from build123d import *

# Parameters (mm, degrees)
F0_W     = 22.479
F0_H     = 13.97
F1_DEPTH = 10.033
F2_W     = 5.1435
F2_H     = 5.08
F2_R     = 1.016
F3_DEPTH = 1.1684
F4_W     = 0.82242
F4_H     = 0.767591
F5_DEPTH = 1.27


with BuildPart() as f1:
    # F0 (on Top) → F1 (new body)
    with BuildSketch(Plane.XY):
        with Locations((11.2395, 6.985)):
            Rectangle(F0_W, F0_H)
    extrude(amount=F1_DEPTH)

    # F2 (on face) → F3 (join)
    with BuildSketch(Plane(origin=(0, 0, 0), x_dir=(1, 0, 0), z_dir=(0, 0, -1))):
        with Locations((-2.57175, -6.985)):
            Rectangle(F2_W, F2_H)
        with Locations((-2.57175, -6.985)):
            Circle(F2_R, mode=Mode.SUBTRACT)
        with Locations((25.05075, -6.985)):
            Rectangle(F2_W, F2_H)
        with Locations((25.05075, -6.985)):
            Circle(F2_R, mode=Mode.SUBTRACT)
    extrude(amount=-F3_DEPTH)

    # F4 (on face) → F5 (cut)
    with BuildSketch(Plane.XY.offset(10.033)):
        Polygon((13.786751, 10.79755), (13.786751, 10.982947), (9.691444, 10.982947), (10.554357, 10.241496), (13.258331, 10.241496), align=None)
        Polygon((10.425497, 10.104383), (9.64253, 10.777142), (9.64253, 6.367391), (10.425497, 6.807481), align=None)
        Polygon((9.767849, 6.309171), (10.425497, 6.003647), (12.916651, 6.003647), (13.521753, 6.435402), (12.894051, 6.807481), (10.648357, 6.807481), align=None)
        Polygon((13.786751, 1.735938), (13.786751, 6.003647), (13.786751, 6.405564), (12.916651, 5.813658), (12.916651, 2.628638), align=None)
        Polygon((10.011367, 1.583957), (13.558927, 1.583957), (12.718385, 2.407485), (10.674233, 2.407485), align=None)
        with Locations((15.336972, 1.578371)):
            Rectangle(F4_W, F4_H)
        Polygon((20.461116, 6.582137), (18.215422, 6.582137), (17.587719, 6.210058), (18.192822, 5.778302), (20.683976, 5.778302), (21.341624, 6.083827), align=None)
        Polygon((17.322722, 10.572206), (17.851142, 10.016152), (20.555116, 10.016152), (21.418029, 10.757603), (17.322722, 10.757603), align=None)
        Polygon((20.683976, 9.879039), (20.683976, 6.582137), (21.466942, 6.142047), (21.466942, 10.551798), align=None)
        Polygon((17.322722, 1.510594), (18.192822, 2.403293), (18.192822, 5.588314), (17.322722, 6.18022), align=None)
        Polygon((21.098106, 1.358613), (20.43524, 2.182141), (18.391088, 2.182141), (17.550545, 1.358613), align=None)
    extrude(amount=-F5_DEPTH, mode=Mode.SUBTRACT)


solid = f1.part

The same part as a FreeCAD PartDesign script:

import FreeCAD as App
import Part
import Sketcher
Q = App.Units.Quantity

doc = App.newDocument("Part")
params = doc.addObject("Spreadsheet::Sheet", "Params")
for row, (alias, value) in enumerate([
    ("sketch1_height", "0.55 in"),
    ("sketch1_width", "0.885 in"),
    ("pad1_length", "0.395 in"),
    ("sketch2_diameter", "0.08 in"),
    ("sketch2_height", "0.2 in"),
    ("pad2_length", "0.046 in"),
    ("pocket1_length", "0.05 in"),
], start=1):
    params.set(f"A{row}", alias)
    params.set(f"B{row}", "=" + value)
    params.setAlias(f"B{row}", alias)

body = doc.addObject("PartDesign::Body", "Body")

# Sketch on XY plane
sketch1 = body.newObject("Sketcher::SketchObject", "Sketch")
sketch1.AttachmentSupport = (doc.getObject("XY_Plane"), [""])
sketch1.MapMode = "FlatFace"
sketch1.addGeometry([
    Part.LineSegment(App.Vector(0, 14, 0), App.Vector(0, 0, 0)),
    Part.LineSegment(App.Vector(0, 0, 0), App.Vector(22, 0, 0)),
    Part.LineSegment(App.Vector(22, 0, 0), App.Vector(22, 14, 0)),
    Part.LineSegment(App.Vector(22, 14, 0), App.Vector(0, 14, 0)),
], False)
sketch1.addConstraint([
    Sketcher.Constraint("Coincident", 0, 2, 1, 1),
    Sketcher.Constraint("Coincident", 1, 2, 2, 1),
    Sketcher.Constraint("Coincident", 2, 2, 3, 1),
    Sketcher.Constraint("Coincident", 3, 2, 0, 1),
    Sketcher.Constraint("Vertical", 0),
    Sketcher.Constraint("Horizontal", 1),
    Sketcher.Constraint("Vertical", 2),
    Sketcher.Constraint("Horizontal", 3),
    Sketcher.Constraint("Coincident", 0, 2, -1, 1),
    Sketcher.Constraint("DistanceY", 0, 2, 0, 1, Q("0.55 in")),
    Sketcher.Constraint("DistanceX", 1, 1, 1, 2, Q("0.885 in")),
])
sketch1.setExpression("Constraints[9]", "Params.sketch1_height")
sketch1.setExpression("Constraints[10]", "Params.sketch1_width")
pad1 = body.newObject("PartDesign::Pad", "Pad")
pad1.Profile = sketch1
pad1.setExpression("Length", "Params.pad1_length")

# Sketch on XY plane
sketch2 = body.newObject("Sketcher::SketchObject", "Sketch001")
sketch2.AttachmentSupport = (doc.getObject("XY_Plane"), [""])
sketch2.MapMode = "FlatFace"
sketch2.addGeometry([
    Part.LineSegment(App.Vector(-5.1, 4.4, 0), App.Vector(-5.1, 9.5, 0)),  # 0
    Part.LineSegment(App.Vector(-5.1, 9.5, 0), App.Vector(0, 9.5, 0)),  # 1
    Part.LineSegment(App.Vector(0, 9.5, 0), App.Vector(0, 4.4, 0)),  # 2
    Part.LineSegment(App.Vector(0, 4.4, 0), App.Vector(-5.1, 4.4, 0)),  # 3
    Part.Circle(App.Vector(-2.6, 7, 0), App.Vector(0, 0, 1), 1),  # 4
    Part.LineSegment(App.Vector(22.5, 4.4, 0), App.Vector(22.5, 9.5, 0)),  # 5
    Part.LineSegment(App.Vector(22.5, 9.5, 0), App.Vector(27.6, 9.5, 0)),  # 6
    Part.LineSegment(App.Vector(27.6, 9.5, 0), App.Vector(27.6, 4.4, 0)),  # 7
    Part.LineSegment(App.Vector(27.6, 4.4, 0), App.Vector(22.5, 4.4, 0)),  # 8
    Part.Circle(App.Vector(25.1, 7, 0), App.Vector(0, 0, 1), 1),  # 9
], False)
sketch2.addConstraint([
    Sketcher.Constraint("Coincident", 0, 2, 1, 1),
    Sketcher.Constraint("Coincident", 1, 2, 2, 1),
    Sketcher.Constraint("Coincident", 2, 2, 3, 1),
    Sketcher.Constraint("Coincident", 3, 2, 0, 1),
    Sketcher.Constraint("Coincident", 5, 2, 6, 1),
    Sketcher.Constraint("Coincident", 6, 2, 7, 1),
    Sketcher.Constraint("Coincident", 7, 2, 8, 1),
    Sketcher.Constraint("Coincident", 8, 2, 5, 1),
    Sketcher.Constraint("Vertical", 0),
    Sketcher.Constraint("Horizontal", 1),
    Sketcher.Constraint("Vertical", 2),
    Sketcher.Constraint("Horizontal", 3),
    Sketcher.Constraint("Vertical", 5),
    Sketcher.Constraint("Horizontal", 6),
    Sketcher.Constraint("Vertical", 7),
    Sketcher.Constraint("Horizontal", 8),
    Sketcher.Constraint("Equal", 4, 9),
    Sketcher.Constraint("PointOnObject", 1, 2, -2),
    Sketcher.Constraint("Horizontal", 4, 3, 9, 3),
    Sketcher.Constraint("Horizontal", 1, 2, 5, 2),
    Sketcher.Constraint("Horizontal", 3, 2, 7, 2),
    Sketcher.Constraint("Equal", 3, 6),
    Sketcher.Constraint("Diameter", 4, Q("0.08 in")),
    Sketcher.Constraint("DistanceY", 0, 1, 0, 2, Q("0.2 in")),
    Sketcher.Constraint("DistanceY", 4, 3, 0, 2, Q("0.1 in")),
    Sketcher.Constraint("DistanceX", 1, 1, 1, 2, Q("0.2025 in")),
    Sketcher.Constraint("DistanceY", -1, 1, 4, 3, Q("0.275 in")),
    Sketcher.Constraint("DistanceX", -1, 1, 5, 2, Q("0.885 in")),
    Sketcher.Constraint("DistanceX", 4, 3, 9, 3, Q("1.0875 in")),
    Sketcher.Constraint("DistanceX", 4, 3, -1, 1, 2.57175),
])
sketch2.setExpression("Constraints[22]", "Params.sketch2_diameter")
sketch2.setExpression("Constraints[23]", "Params.sketch2_height")
pad2 = body.newObject("PartDesign::Pad", "Pad001")
pad2.Profile = sketch2
pad2.setExpression("Length", "Params.pad2_length")

# Sketch on XY plane
sketch3 = body.newObject("Sketcher::SketchObject", "Sketch002")
sketch3.AttachmentSupport = (doc.getObject("XY_Plane"), [""])
sketch3.MapMode = "FlatFace"
sketch3.AttachmentOffset = App.Placement(App.Vector(0, 0, 0.395 * 25.4), App.Rotation())
sketch3.addGeometry([
    Part.LineSegment(App.Vector(13.79, 10.8, 0), App.Vector(13.79, 10.98, 0)),  # 0
    Part.LineSegment(App.Vector(13.79, 10.98, 0), App.Vector(9.69, 10.98, 0)),  # 1
    Part.LineSegment(App.Vector(9.69, 10.98, 0), App.Vector(10.55, 10.24, 0)),  # 2
    Part.LineSegment(App.Vector(10.55, 10.24, 0), App.Vector(13.26, 10.24, 0)),  # 3
    Part.LineSegment(App.Vector(13.26, 10.24, 0), App.Vector(13.79, 10.8, 0)),  # 4
    Part.LineSegment(App.Vector(10.43, 10.1, 0), App.Vector(9.64, 10.78, 0)),  # 5
    Part.LineSegment(App.Vector(9.64, 10.78, 0), App.Vector(9.64, 6.37, 0)),  # 6
    Part.LineSegment(App.Vector(9.64, 6.37, 0), App.Vector(10.43, 6.81, 0)),  # 7
    Part.LineSegment(App.Vector(10.43, 6.81, 0), App.Vector(10.43, 10.1, 0)),  # 8
    Part.LineSegment(App.Vector(9.77, 6.31, 0), App.Vector(10.43, 6, 0)),  # 9
    Part.LineSegment(App.Vector(10.43, 6, 0), App.Vector(12.92, 6, 0)),  # 10
    Part.LineSegment(App.Vector(12.92, 6, 0), App.Vector(13.52, 6.44, 0)),  # 11
    Part.LineSegment(App.Vector(13.52, 6.44, 0), App.Vector(12.89, 6.81, 0)),  # 12
    Part.LineSegment(App.Vector(12.89, 6.81, 0), App.Vector(10.65, 6.81, 0)),  # 13
    Part.LineSegment(App.Vector(10.65, 6.81, 0), App.Vector(9.77, 6.31, 0)),  # 14
    Part.LineSegment(App.Vector(13.79, 1.74, 0), App.Vector(13.79, 6.41, 0)),  # 15
    Part.LineSegment(App.Vector(13.79, 6.41, 0), App.Vector(12.92, 5.81, 0)),  # 16
    Part.LineSegment(App.Vector(12.92, 5.81, 0), App.Vector(12.92, 2.63, 0)),  # 17
    Part.LineSegment(App.Vector(12.92, 2.63, 0), App.Vector(13.79, 1.74, 0)),  # 18
    Part.LineSegment(App.Vector(10.01, 1.58, 0), App.Vector(13.56, 1.58, 0)),  # 19
    Part.LineSegment(App.Vector(13.56, 1.58, 0), App.Vector(12.72, 2.41, 0)),  # 20
    Part.LineSegment(App.Vector(12.72, 2.41, 0), App.Vector(10.67, 2.41, 0)),  # 21
    Part.LineSegment(App.Vector(10.67, 2.41, 0), App.Vector(10.01, 1.58, 0)),  # 22
    Part.LineSegment(App.Vector(14.93, 1.96, 0), App.Vector(14.93, 1.19, 0)),  # 23
    Part.LineSegment(App.Vector(14.93, 1.19, 0), App.Vector(15.75, 1.19, 0)),  # 24
    Part.LineSegment(App.Vector(15.75, 1.19, 0), App.Vector(15.75, 1.96, 0)),  # 25
    Part.LineSegment(App.Vector(15.75, 1.96, 0), App.Vector(14.93, 1.96, 0)),  # 26
    Part.LineSegment(App.Vector(20.46, 6.58, 0), App.Vector(18.22, 6.58, 0)),  # 27
    Part.LineSegment(App.Vector(18.22, 6.58, 0), App.Vector(17.59, 6.21, 0)),  # 28
    Part.LineSegment(App.Vector(17.59, 6.21, 0), App.Vector(18.19, 5.78, 0)),  # 29
    Part.LineSegment(App.Vector(18.19, 5.78, 0), App.Vector(20.68, 5.78, 0)),  # 30
    Part.LineSegment(App.Vector(20.68, 5.78, 0), App.Vector(21.34, 6.08, 0)),  # 31
    Part.LineSegment(App.Vector(21.34, 6.08, 0), App.Vector(20.46, 6.58, 0)),  # 32
    Part.LineSegment(App.Vector(17.32, 10.57, 0), App.Vector(17.85, 10.02, 0)),  # 33
    Part.LineSegment(App.Vector(17.85, 10.02, 0), App.Vector(20.56, 10.02, 0)),  # 34
    Part.LineSegment(App.Vector(20.56, 10.02, 0), App.Vector(21.42, 10.76, 0)),  # 35
    Part.LineSegment(App.Vector(21.42, 10.76, 0), App.Vector(17.32, 10.76, 0)),  # 36
    Part.LineSegment(App.Vector(17.32, 10.76, 0), App.Vector(17.32, 10.57, 0)),  # 37
    Part.LineSegment(App.Vector(20.68, 9.88, 0), App.Vector(20.68, 6.58, 0)),  # 38
    Part.LineSegment(App.Vector(20.68, 6.58, 0), App.Vector(21.47, 6.14, 0)),  # 39
    Part.LineSegment(App.Vector(21.47, 6.14, 0), App.Vector(21.47, 10.55, 0)),  # 40
    Part.LineSegment(App.Vector(21.47, 10.55, 0), App.Vector(20.68, 9.88, 0)),  # 41
    Part.LineSegment(App.Vector(17.32, 1.51, 0), App.Vector(18.19, 2.4, 0)),  # 42
    Part.LineSegment(App.Vector(18.19, 2.4, 0), App.Vector(18.19, 5.59, 0)),  # 43
    Part.LineSegment(App.Vector(18.19, 5.59, 0), App.Vector(17.32, 6.18, 0)),  # 44
    Part.LineSegment(App.Vector(17.32, 6.18, 0), App.Vector(17.32, 1.51, 0)),  # 45
    Part.LineSegment(App.Vector(21.1, 1.36, 0), App.Vector(20.44, 2.18, 0)),  # 46
    Part.LineSegment(App.Vector(20.44, 2.18, 0), App.Vector(18.39, 2.18, 0)),  # 47
    Part.LineSegment(App.Vector(18.39, 2.18, 0), App.Vector(17.55, 1.36, 0)),  # 48
    Part.LineSegment(App.Vector(17.55, 1.36, 0), App.Vector(21.1, 1.36, 0)),  # 49
], False)
sketch3.addConstraint([
    Sketcher.Constraint("Coincident", 0, 2, 1, 1),
    Sketcher.Constraint("Coincident", 1, 2, 2, 1),
    Sketcher.Constraint("Coincident", 2, 2, 3, 1),
    Sketcher.Constraint("Coincident", 3, 2, 4, 1),
    Sketcher.Constraint("Coincident", 4, 2, 0, 1),
    Sketcher.Constraint("Coincident", 5, 2, 6, 1),
    Sketcher.Constraint("Coincident", 6, 2, 7, 1),
    Sketcher.Constraint("Coincident", 7, 2, 8, 1),
    Sketcher.Constraint("Coincident", 8, 2, 5, 1),
    Sketcher.Constraint("Coincident", 9, 2, 10, 1),
    Sketcher.Constraint("Coincident", 10, 2, 11, 1),
    Sketcher.Constraint("Coincident", 11, 2, 12, 1),
    Sketcher.Constraint("Coincident", 12, 2, 13, 1),
    Sketcher.Constraint("Coincident", 13, 2, 14, 1),
    Sketcher.Constraint("Coincident", 14, 2, 9, 1),
    Sketcher.Constraint("Coincident", 15, 2, 16, 1),
    Sketcher.Constraint("Coincident", 16, 2, 17, 1),
    Sketcher.Constraint("Coincident", 17, 2, 18, 1),
    Sketcher.Constraint("Coincident", 18, 2, 15, 1),
    Sketcher.Constraint("Coincident", 19, 2, 20, 1),
    Sketcher.Constraint("Coincident", 20, 2, 21, 1),
    Sketcher.Constraint("Coincident", 21, 2, 22, 1),
    Sketcher.Constraint("Coincident", 22, 2, 19, 1),
    Sketcher.Constraint("Coincident", 23, 2, 24, 1),
    Sketcher.Constraint("Coincident", 24, 2, 25, 1),
    Sketcher.Constraint("Coincident", 25, 2, 26, 1),
    Sketcher.Constraint("Coincident", 26, 2, 23, 1),
    Sketcher.Constraint("Coincident", 27, 2, 28, 1),
    Sketcher.Constraint("Coincident", 28, 2, 29, 1),
    Sketcher.Constraint("Coincident", 29, 2, 30, 1),
    Sketcher.Constraint("Coincident", 30, 2, 31, 1),
    Sketcher.Constraint("Coincident", 31, 2, 32, 1),
    Sketcher.Constraint("Coincident", 32, 2, 27, 1),
    Sketcher.Constraint("Coincident", 33, 2, 34, 1),
    Sketcher.Constraint("Coincident", 34, 2, 35, 1),
    Sketcher.Constraint("Coincident", 35, 2, 36, 1),
    Sketcher.Constraint("Coincident", 36, 2, 37, 1),
    Sketcher.Constraint("Coincident", 37, 2, 33, 1),
    Sketcher.Constraint("Coincident", 38, 2, 39, 1),
    Sketcher.Constraint("Coincident", 39, 2, 40, 1),
    Sketcher.Constraint("Coincident", 40, 2, 41, 1),
    Sketcher.Constraint("Coincident", 41, 2, 38, 1),
    Sketcher.Constraint("Coincident", 42, 2, 43, 1),
    Sketcher.Constraint("Coincident", 43, 2, 44, 1),
    Sketcher.Constraint("Coincident", 44, 2, 45, 1),
    Sketcher.Constraint("Coincident", 45, 2, 42, 1),
    Sketcher.Constraint("Coincident", 46, 2, 47, 1),
    Sketcher.Constraint("Coincident", 47, 2, 48, 1),
    Sketcher.Constraint("Coincident", 48, 2, 49, 1),
    Sketcher.Constraint("Coincident", 49, 2, 46, 1),
    Sketcher.Constraint("Vertical", 0),
    Sketcher.Constraint("Horizontal", 1),
    Sketcher.Constraint("Horizontal", 3),
    Sketcher.Constraint("Vertical", 6),
    Sketcher.Constraint("Vertical", 8),
    Sketcher.Constraint("Horizontal", 10),
    Sketcher.Constraint("Horizontal", 13),
    Sketcher.Constraint("Vertical", 15),
    Sketcher.Constraint("Vertical", 17),
    Sketcher.Constraint("Horizontal", 19),
    Sketcher.Constraint("Horizontal", 21),
    Sketcher.Constraint("Vertical", 23),
    Sketcher.Constraint("Horizontal", 24),
    Sketcher.Constraint("Vertical", 25),
    Sketcher.Constraint("Horizontal", 26),
    Sketcher.Constraint("Horizontal", 27),
    Sketcher.Constraint("Horizontal", 30),
    Sketcher.Constraint("Horizontal", 34),
    Sketcher.Constraint("Horizontal", 36),
    Sketcher.Constraint("Vertical", 37),
    Sketcher.Constraint("Vertical", 38),
    Sketcher.Constraint("Vertical", 40),
    Sketcher.Constraint("Vertical", 43),
    Sketcher.Constraint("Vertical", 45),
    Sketcher.Constraint("Horizontal", 47),
    Sketcher.Constraint("Horizontal", 49),
    Sketcher.Constraint("Parallel", 2, 5),
    Sketcher.Constraint("Parallel", 35, 41),
    Sketcher.Constraint("Horizontal", 7, 2, 12, 2),
    Sketcher.Constraint("Horizontal", 32, 2, 38, 2),
    Sketcher.Constraint("Vertical", 8, 2, 9, 2),
    Sketcher.Constraint("Vertical", 4, 2, 15, 2),
    Sketcher.Constraint("Vertical", 10, 2, 16, 2),
    Sketcher.Constraint("Vertical", 30, 2, 38, 2),
    Sketcher.Constraint("Vertical", 29, 2, 42, 2),
    Sketcher.Constraint("Vertical", 37, 2, 44, 2),
    Sketcher.Constraint("Equal", 13, 27),
    Sketcher.Constraint("Equal", 10, 30),
    Sketcher.Constraint("Equal", 3, 34),
    Sketcher.Constraint("Equal", 1, 36),
    Sketcher.Constraint("Equal", 21, 47),
    Sketcher.Constraint("Equal", 19, 49),
    Sketcher.Constraint("Equal", 0, 37),
    Sketcher.Constraint("Equal", 8, 38),
    Sketcher.Constraint("Equal", 6, 40),
    Sketcher.Constraint("Equal", 17, 43),
    Sketcher.Constraint("Equal", 15, 45),
    Sketcher.Constraint("Equal", 12, 28),
    Sketcher.Constraint("Equal", 11, 29),
    Sketcher.Constraint("Equal", 9, 31),
    Sketcher.Constraint("Equal", 14, 32),
    Sketcher.Constraint("Equal", 4, 33),
    Sketcher.Constraint("Equal", 2, 35),
    Sketcher.Constraint("Equal", 7, 39),
    Sketcher.Constraint("Equal", 18, 42),
    Sketcher.Constraint("Equal", 16, 44),
    Sketcher.Constraint("Equal", 22, 46),
    Sketcher.Constraint("Equal", 20, 48),
    Sketcher.Constraint("DistanceX", 7, 2, 11, 2, Q("0.1218998 in")),
    Sketcher.Constraint("DistanceX", 28, 2, 30, 2, Q("0.1218999 in")),
    Sketcher.Constraint("Distance", 5, 1.032299),
    Sketcher.Constraint("DistanceX", 19, 1, 19, 2, 3.54756),
    Sketcher.Constraint("DistanceX", 24, 1, 24, 2, 0.82242),
    Sketcher.Constraint("DistanceY", 6, 2, 6, 1, 4.409751),
    Sketcher.Constraint("DistanceY", 17, 2, 17, 1, 3.18502),
    Sketcher.Constraint("DistanceY", 23, 2, 23, 1, 0.767591),
    Sketcher.Constraint("DistanceX", 5, 2, 3, 2, 3.615801),
    Sketcher.Constraint("DistanceX", 12, 2, 10, 2, 0.0226),
    Sketcher.Constraint("DistanceX", 14, 2, 10, 2, 3.148802),
    Sketcher.Constraint("DistanceX", 11, 2, 15, 2, 0.264998),
    Sketcher.Constraint("DistanceX", 10, 2, 15, 2, 0.8701),
    Sketcher.Constraint("DistanceY", 18, 2, 17, 2, 0.8927),
    Sketcher.Constraint("DistanceY", 19, 2, 16, 2, 4.229701),
    Sketcher.Constraint("DistanceX", 29, 2, 27, 2, 0.0226),
    Sketcher.Constraint("DistanceY", 29, 2, 11, 2, 0.6571),
    Sketcher.Constraint("DistanceX", 32, 2, 34, 2, 0.094),
    Sketcher.Constraint("DistanceY", 30, 2, 35, 2, 4.979301),
    Sketcher.Constraint("Distance", 22, 1.057161),
    Sketcher.Constraint("DistanceX", 1, 2, 1, 1, 4.095307),
    Sketcher.Constraint("DistanceX", 3, 1, 3, 2, 2.703974),
    Sketcher.Constraint("DistanceX", 13, 2, 13, 1, 2.245694),
    Sketcher.Constraint("DistanceX", 21, 2, 21, 1, 2.044152),
    Sketcher.Constraint("DistanceY", 0, 1, 0, 2, 0.185397),
    Sketcher.Constraint("DistanceY", 8, 1, 8, 2, 3.296902),
    Sketcher.Constraint("DistanceY", 15, 1, 15, 2, 4.669626),
    Sketcher.Constraint("DistanceX", -1, 1, 0, 2, 13.786751),
    Sketcher.Constraint("DistanceY", -1, 1, 4, 2, 10.79755),
    Sketcher.Constraint("DistanceY", -1, 1, 6, 2, 6.367391),
    Sketcher.Constraint("DistanceY", -1, 1, 14, 2, 6.309171),
    Sketcher.Constraint("DistanceY", -1, 1, 16, 2, 5.813658),
    Sketcher.Constraint("DistanceX", -1, 1, 27, 2, 18.215422),
    Sketcher.Constraint("DistanceY", -1, 1, 41, 2, 9.879039),
    Sketcher.Constraint("DistanceY", -1, 1, 44, 2, 6.18022),
    Sketcher.Constraint("DistanceX", -1, 1, 46, 2, 20.43524),
    Sketcher.Constraint("DistanceY", -1, 1, 46, 2, 2.182141),
    Sketcher.Constraint("DistanceY", 9, 2, 2, 2, 4.237849),
    Sketcher.Constraint("DistanceX", 21, 2, 17, 2, 2.242418),
    Sketcher.Constraint("DistanceX", 18, 2, 23, 2, 1.139011),
    Sketcher.Constraint("DistanceY", 23, 2, 19, 2, 0.389382),
    Sketcher.Constraint("DistanceY", 23, 2, 20, 2, 1.212909),
])
pocket1 = body.newObject("PartDesign::Pocket", "Pocket")
pocket1.Profile = sketch3
pocket1.setExpression("Length", "Params.pocket1_length")

doc.recompute()
